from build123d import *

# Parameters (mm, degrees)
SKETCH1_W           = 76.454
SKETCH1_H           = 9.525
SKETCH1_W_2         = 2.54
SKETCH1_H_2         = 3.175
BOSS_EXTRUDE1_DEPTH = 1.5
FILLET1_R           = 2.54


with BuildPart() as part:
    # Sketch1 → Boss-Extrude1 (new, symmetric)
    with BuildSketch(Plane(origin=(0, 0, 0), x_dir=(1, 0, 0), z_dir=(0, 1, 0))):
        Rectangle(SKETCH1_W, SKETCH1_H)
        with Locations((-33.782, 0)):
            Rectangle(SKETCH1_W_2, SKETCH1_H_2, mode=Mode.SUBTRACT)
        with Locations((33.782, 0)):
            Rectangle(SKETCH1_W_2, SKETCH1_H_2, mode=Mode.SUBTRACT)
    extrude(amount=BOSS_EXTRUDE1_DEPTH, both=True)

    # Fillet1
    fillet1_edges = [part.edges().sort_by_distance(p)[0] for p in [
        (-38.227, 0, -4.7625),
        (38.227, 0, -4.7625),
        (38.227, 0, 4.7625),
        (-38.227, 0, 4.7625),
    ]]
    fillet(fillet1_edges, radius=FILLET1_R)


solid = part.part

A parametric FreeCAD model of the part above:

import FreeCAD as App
import Part
import Sketcher
Q = App.Units.Quantity


def edges_at(feature, points):
    """Names of the edges that pass closest to the given points."""
    edges = feature.Shape.Edges
    near = lambda p: min(range(len(edges)), key=lambda i: edges[i].distToShape(Part.Vertex(*p))[0])
    return sorted({f"Edge{near(p) + 1}" for p in points})

doc = App.newDocument("Part")
body = doc.addObject("PartDesign::Body", "Body")

# Sketch on XZ plane
sketch1 = doc.addObject("Sketcher::SketchObject", "Sketch")
body.addObject(sketch1)
sketch1.AttachmentSupport = (doc.XZ_Plane, [""])
sketch1.MapMode = "FlatFace"
sketch1.addGeometry(Part.LineSegment(App.Vector(-38.2, -4.8, 0), App.Vector(-38.2, 4.8, 0)), False)
sketch1.addGeometry(Part.LineSegment(App.Vector(-38.2, 4.8, 0), App.Vector(38.2, 4.8, 0)), False)
sketch1.addGeometry(Part.LineSegment(App.Vector(38.2, 4.8, 0), App.Vector(38.2, -4.8, 0)), False)
sketch1.addGeometry(Part.LineSegment(App.Vector(38.2, -4.8, 0), App.Vector(-38.2, -4.8, 0)), False)
sketch1.addGeometry(Part.LineSegment(App.Vector(-32.5, 1.6, 0), App.Vector(-35.1, 1.6, 0)), False)
sketch1.addGeometry(Part.LineSegment(App.Vector(-35.1, 1.6, 0), App.Vector(-35.1, -1.6, 0)), False)
sketch1.addGeometry(Part.LineSegment(App.Vector(-35.1, -1.6, 0), App.Vector(-32.5, -1.6, 0)), False)
sketch1.addGeometry(Part.LineSegment(App.Vector(-32.5, -1.6, 0), App.Vector(-32.5, 1.6, 0)), False)
sketch1.addGeometry(Part.LineSegment(App.Vector(35.1, 1.6, 0), App.Vector(32.5, 1.6, 0)), False)
sketch1.addGeometry(Part.LineSegment(App.Vector(32.5, 1.6, 0), App.Vector(32.5, -1.6, 0)), False)
sketch1.addGeometry(Part.LineSegment(App.Vector(32.5, -1.6, 0), App.Vector(35.1, -1.6, 0)), False)
sketch1.addGeometry(Part.LineSegment(App.Vector(35.1, -1.6, 0), App.Vector(35.1, 1.6, 0)), False)
sketch1.addConstraint(Sketcher.Constraint("Coincident", 0, 2, 1, 1))
sketch1.addConstraint(Sketcher.Constraint("Coincident", 1, 2, 2, 1))
sketch1.addConstraint(Sketcher.Constraint("Coincident", 2, 2, 3, 1))
sketch1.addConstraint(Sketcher.Constraint("Coincident", 3, 2, 0, 1))
sketch1.addConstraint(Sketcher.Constraint("Coincident", 4, 2, 5, 1))
sketch1.addConstraint(Sketcher.Constraint("Coincident", 5, 2, 6, 1))
sketch1.addConstraint(Sketcher.Constraint("Coincident", 6, 2, 7, 1))
sketch1.addConstraint(Sketcher.Constraint("Coincident", 7, 2, 4, 1))
sketch1.addConstraint(Sketcher.Constraint("Coincident", 8, 2, 9, 1))
sketch1.addConstraint(Sketcher.Constraint("Coincident", 9, 2, 10, 1))
sketch1.addConstraint(Sketcher.Constraint("Coincident", 10, 2, 11, 1))
sketch1.addConstraint(Sketcher.Constraint("Coincident", 11, 2, 8, 1))
sketch1.addConstraint(Sketcher.Constraint("Vertical", 0))
sketch1.addConstraint(Sketcher.Constraint("Horizontal", 1))
sketch1.addConstraint(Sketcher.Constraint("Vertical", 2))
sketch1.addConstraint(Sketcher.Constraint("Horizontal", 3))
sketch1.addConstraint(Sketcher.Constraint("Horizontal", 4))
sketch1.addConstraint(Sketcher.Constraint("Vertical", 5))
sketch1.addConstraint(Sketcher.Constraint("Horizontal", 6))
sketch1.addConstraint(Sketcher.Constraint("Vertical", 7))
sketch1.addConstraint(Sketcher.Constraint("Horizontal", 8))
sketch1.addConstraint(Sketcher.Constraint("Vertical", 9))
sketch1.addConstraint(Sketcher.Constraint("Horizontal", 10))
sketch1.addConstraint(Sketcher.Constraint("Vertical", 11))
sketch1.addConstraint(Sketcher.Constraint("Symmetric", 0, 2, 2, 2, -1, 1))
sketch1.addConstraint(Sketcher.Constraint("Symmetric", 6, 2, 8, 2, -1, 1))
sketch1.addConstraint(Sketcher.Constraint("Symmetric", 4, 2, 10, 2, -1, 1))
sketch1.addConstraint(Sketcher.Constraint("Horizontal", 7, 2, 8, 2))
sketch1.addConstraint(Sketcher.Constraint("DistanceX", 4, 2, 4, 1, Q("0.1 in")))
sketch1.addConstraint(Sketcher.Constraint("DistanceX", 1, 1, 1, 2, Q("3.01 in")))
sketch1.addConstraint(Sketcher.Constraint("DistanceY", 0, 1, 0, 2, Q("0.375 in")))
sketch1.addConstraint(Sketcher.Constraint("DistanceY", 5, 2, 5, 1, Q("0.125 in")))
sketch1.addConstraint(Sketcher.Constraint("DistanceX", 4, 2, -1, 1, Q("1.38 in")))
pad1 = doc.addObject("PartDesign::Pad", "Pad")
body.addObject(pad1)
pad1.Profile = sketch1
pad1.Length = 3
pad1.Midplane = True
doc.recompute()

fillet = doc.addObject("PartDesign::Fillet", "Fillet")
body.addObject(fillet)
fillet.Base = (pad1, edges_at(pad1, [
    (-38.227, 0, -4.763),
    (38.227, 0, -4.763),
    (38.227, 0, 4.763),
    (-38.227, 0, 4.763),
]))
fillet.Radius = Q("0.1 in")

doc.recompute()
